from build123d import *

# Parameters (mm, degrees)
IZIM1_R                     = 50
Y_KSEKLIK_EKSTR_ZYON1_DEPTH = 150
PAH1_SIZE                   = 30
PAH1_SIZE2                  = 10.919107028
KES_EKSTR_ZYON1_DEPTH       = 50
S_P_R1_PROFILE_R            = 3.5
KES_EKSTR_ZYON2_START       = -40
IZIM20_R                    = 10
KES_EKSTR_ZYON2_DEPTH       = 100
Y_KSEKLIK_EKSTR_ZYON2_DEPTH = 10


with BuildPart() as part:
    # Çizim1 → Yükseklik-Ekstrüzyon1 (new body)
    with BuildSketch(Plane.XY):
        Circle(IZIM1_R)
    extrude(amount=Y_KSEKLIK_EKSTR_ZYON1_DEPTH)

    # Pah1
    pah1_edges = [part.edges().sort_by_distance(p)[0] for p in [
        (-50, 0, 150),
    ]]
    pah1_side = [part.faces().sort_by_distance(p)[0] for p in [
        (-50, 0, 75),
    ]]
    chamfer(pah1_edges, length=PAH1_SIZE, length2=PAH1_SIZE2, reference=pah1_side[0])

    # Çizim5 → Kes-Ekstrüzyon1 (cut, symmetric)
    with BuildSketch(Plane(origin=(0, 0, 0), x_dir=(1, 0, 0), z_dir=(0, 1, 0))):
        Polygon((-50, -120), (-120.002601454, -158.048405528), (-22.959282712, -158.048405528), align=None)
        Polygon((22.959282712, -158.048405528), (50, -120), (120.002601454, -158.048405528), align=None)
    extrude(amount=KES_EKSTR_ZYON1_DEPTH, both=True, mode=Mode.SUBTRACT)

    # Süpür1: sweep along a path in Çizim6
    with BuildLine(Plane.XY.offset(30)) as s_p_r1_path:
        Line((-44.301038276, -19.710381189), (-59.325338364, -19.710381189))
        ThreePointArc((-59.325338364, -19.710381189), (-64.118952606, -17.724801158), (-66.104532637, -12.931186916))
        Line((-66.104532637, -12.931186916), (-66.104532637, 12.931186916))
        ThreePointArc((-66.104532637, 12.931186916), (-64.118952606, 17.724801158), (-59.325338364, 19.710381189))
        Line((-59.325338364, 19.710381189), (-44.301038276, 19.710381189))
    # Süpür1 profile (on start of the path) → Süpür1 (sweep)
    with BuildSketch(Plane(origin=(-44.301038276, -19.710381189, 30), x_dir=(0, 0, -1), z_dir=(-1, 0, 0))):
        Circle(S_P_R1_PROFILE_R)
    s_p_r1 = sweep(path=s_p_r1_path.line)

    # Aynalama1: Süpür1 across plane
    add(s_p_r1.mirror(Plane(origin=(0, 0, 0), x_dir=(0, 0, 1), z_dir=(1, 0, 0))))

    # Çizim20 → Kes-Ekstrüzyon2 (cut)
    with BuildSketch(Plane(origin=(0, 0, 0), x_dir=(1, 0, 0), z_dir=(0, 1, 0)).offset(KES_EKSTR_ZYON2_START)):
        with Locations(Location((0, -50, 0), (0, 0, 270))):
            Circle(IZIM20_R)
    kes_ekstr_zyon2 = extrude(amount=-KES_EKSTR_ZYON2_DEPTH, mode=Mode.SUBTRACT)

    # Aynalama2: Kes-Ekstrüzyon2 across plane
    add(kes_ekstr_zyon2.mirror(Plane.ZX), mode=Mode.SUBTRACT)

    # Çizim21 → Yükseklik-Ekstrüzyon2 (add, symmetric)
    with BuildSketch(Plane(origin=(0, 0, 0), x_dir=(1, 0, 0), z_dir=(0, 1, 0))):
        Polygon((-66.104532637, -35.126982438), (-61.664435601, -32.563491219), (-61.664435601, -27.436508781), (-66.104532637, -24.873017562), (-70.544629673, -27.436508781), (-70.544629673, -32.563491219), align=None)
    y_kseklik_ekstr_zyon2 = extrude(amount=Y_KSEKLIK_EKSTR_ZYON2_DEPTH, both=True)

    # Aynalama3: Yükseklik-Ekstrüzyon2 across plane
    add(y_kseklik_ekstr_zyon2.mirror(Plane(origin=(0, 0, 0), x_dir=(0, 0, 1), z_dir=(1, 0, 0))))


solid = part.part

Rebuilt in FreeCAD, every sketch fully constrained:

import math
import FreeCAD as App
import Part
import Sketcher
from FreeCAD import Vector
Q = App.Units.Quantity


def edges_at(feature, points):
    """Names of the edges that pass closest to the given points."""
    edges = feature.Shape.Edges
    near = lambda p: min(range(len(edges)), key=lambda i: edges[i].distToShape(Part.Vertex(*p))[0])
    return sorted({f"Edge{near(p) + 1}" for p in points})

doc = App.newDocument("Part")
body = doc.addObject("PartDesign::Body", "Body")

sketch1 = body.newObject("Sketcher::SketchObject", "Sketch")
sketch1.AttachmentSupport = (doc.getObject("XY_Plane"), [""])
sketch1.MapMode = "FlatFace"
sketch1.addGeometry(Part.Circle(Vector(0, 0, 0), Vector(0, 0, 1), 50), False)
sketch1.addConstraint([
    Sketcher.Constraint("Coincident", 0, 3, -1, 1),
    Sketcher.Constraint("Diameter", 0, Q("100 mm")),
])
pad1 = body.newObject("PartDesign::Pad", "Pad")
pad1.Profile = sketch1
pad1.Length = 150
doc.recompute()

chamfer = body.newObject("PartDesign::Chamfer", "Chamfer")
chamfer.Base = (pad1, edges_at(pad1, [(-50, 0, 150)]))
chamfer.ChamferType = "Two distances"
chamfer.Size = 30
chamfer.Size2 = 10.919107

sketch2 = body.newObject("Sketcher::SketchObject", "Sketch001")
sketch2.AttachmentSupport = (doc.getObject("XZ_Plane"), [""])
sketch2.MapMode = "FlatFace"
sketch2.addGeometry([
    Part.LineSegment(Vector(-50, 120, 0), Vector(-120, 158, 0)),
    Part.LineSegment(Vector(-120, 158, 0), Vector(-23, 158, 0)),
    Part.LineSegment(Vector(-23, 158, 0), Vector(-50, 120, 0)),
    Part.LineSegment(Vector(50, 120, 0), Vector(23, 158, 0)),
    Part.LineSegment(Vector(23, 158, 0), Vector(120, 158, 0)),
    Part.LineSegment(Vector(120, 158, 0), Vector(50, 120, 0)),
], False)
sketch2.addConstraint([
    Sketcher.Constraint("Coincident", 0, 2, 1, 1),
    Sketcher.Constraint("Coincident", 1, 2, 2, 1),
    Sketcher.Constraint("Coincident", 2, 2, 0, 1),
    Sketcher.Constraint("Coincident", 3, 2, 4, 1),
    Sketcher.Constraint("Coincident", 4, 2, 5, 1),
    Sketcher.Constraint("Coincident", 5, 2, 3, 1),
    Sketcher.Constraint("Horizontal", 1),
    Sketcher.Constraint("Horizontal", 4),
    Sketcher.Constraint("Symmetric", 1, 2, 3, 2, -2),
    Sketcher.Constraint("Symmetric", 2, 2, 5, 2, -2),
    Sketcher.Constraint("Equal", 1, 4),
    Sketcher.Constraint("DistanceX", 2, 2, -1, 1, Q("50 mm")),
    Sketcher.Constraint("DistanceY", -1, 1, 2, 2, Q("120 mm")),
    Sketcher.Constraint("DistanceX", 1, 1, 1, 2, Q("97.043319 mm")),
    Sketcher.Constraint("DistanceX", 0, 2, -1, 1, Q("120.002601 mm")),
    Sketcher.Constraint("Distance", 0, Q("79.674622 mm")),
])
pocket1 = body.newObject("PartDesign::Pocket", "Pocket")
pocket1.Profile = sketch2
pocket1.Length = 100
pocket1.Midplane = True

sketch3 = body.newObject("Sketcher::SketchObject", "Sketch002")
sketch3.AttachmentSupport = (doc.getObject("YZ_Plane"), [""])
sketch3.MapMode = "FlatFace"
sketch3.AttachmentOffset = App.Placement(Vector(0, 0, -44.301038), App.Rotation())
sketch3.addGeometry(Part.Circle(Vector(-19.7, 30, 0), Vector(0, 0, 1), 3.5), False)
sketch3.addConstraint([
    Sketcher.Constraint("Diameter", 0, Q("7 mm")),
    Sketcher.Constraint("DistanceY", -1, 1, 0, 3, Q("30 mm")),
    Sketcher.Constraint("DistanceX", 0, 3, -1, 1, Q("19.710381 mm")),
])

sketch4 = body.newObject("Sketcher::SketchObject", "Sketch003")
sketch4.AttachmentSupport = (doc.getObject("XY_Plane"), [""])
sketch4.MapMode = "FlatFace"
sketch4.AttachmentOffset = App.Placement(Vector(0, 0, 30), App.Rotation())
sketch4.addGeometry([
    Part.LineSegment(Vector(-44, -20, 0), Vector(-59, -20, 0)),
    Part.ArcOfCircle(Part.Circle(Vector(-59, -13, 0), Vector(0, 0, 1), 7), math.radians(180), math.radians(270)),
    Part.LineSegment(Vector(-66, -13, 0), Vector(-66, 13, 0)),
    Part.ArcOfCircle(Part.Circle(Vector(-59, 13, 0), Vector(0, 0, 1), 7), math.radians(90), math.radians(180)),
    Part.LineSegment(Vector(-59, 20, 0), Vector(-44, 20, 0)),
], False)
sketch4.addConstraint([
    Sketcher.Constraint("Tangent", 0, 2, 1, 2),
    Sketcher.Constraint("Tangent", 1, 1, 2, 1),
    Sketcher.Constraint("Tangent", 2, 2, 3, 2),
    Sketcher.Constraint("Tangent", 3, 1, 4, 1),
    Sketcher.Constraint("Horizontal", 0),
    Sketcher.Constraint("Vertical", 2),
    Sketcher.Constraint("Horizontal", 4),
    Sketcher.Constraint("Equal", 1, 3),
    Sketcher.Constraint("Symmetric", 0, 1, 4, 2, -1),
    Sketcher.Constraint("DistanceX", 0, 2, 0, 1, Q("15.0243 mm")),
    Sketcher.Constraint("Radius", 1, Q("6.779194 mm")),
    Sketcher.Constraint("DistanceY", 2, 1, 2, 2, Q("25.862374 mm")),
    Sketcher.Constraint("DistanceX", 1, 3, -1, 1, Q("59.325338 mm")),
])
doc.recompute()

additivepipe = body.newObject("PartDesign::AdditivePipe", "AdditivePipe")
additivepipe.Profile = sketch3
additivepipe.Spine = (sketch4, ["Edge1", "Edge2", "Edge3", "Edge4", "Edge5"])
doc.recompute()

mirrored = body.newObject("PartDesign::Mirrored", "Mirrored")
mirrored.Originals = [additivepipe]
mirrored.MirrorPlane = (doc.getObject("YZ_Plane"), [""])
body.Tip = mirrored

sketch5 = body.newObject("Sketcher::SketchObject", "Sketch004")
sketch5.AttachmentSupport = (doc.getObject("XZ_Plane"), [""])
sketch5.MapMode = "FlatFace"
sketch5.AttachmentOffset = App.Placement(Vector(0, 0, 40), App.Rotation())
sketch5.addGeometry(Part.Circle(Vector(0, 50, 0), Vector(0, 0, 1), 10), False)
sketch5.addConstraint([
    Sketcher.Constraint("PointOnObject", 0, 3, -2),
    Sketcher.Constraint("Diameter", 0, Q("20 mm")),
    Sketcher.Constraint("DistanceY", -1, 1, 0, 3, Q("50 mm")),
])
pocket2 = body.newObject("PartDesign::Pocket", "Pocket001")
pocket2.Profile = sketch5
pocket2.Length = 100
pocket2.Reversed = True
doc.recompute()

mirrored2 = body.newObject("PartDesign::Mirrored", "Mirrored001")
mirrored2.Originals = [pocket2]
mirrored2.MirrorPlane = (doc.getObject("XZ_Plane"), [""])
body.Tip = mirrored2

sketch6 = body.newObject("Sketcher::SketchObject", "Sketch005")
sketch6.AttachmentSupport = (doc.getObject("XZ_Plane"), [""])
sketch6.MapMode = "FlatFace"
sketch6.addGeometry([
    Part.LineSegment(Vector(-66, 35, 0), Vector(-62, 33, 0)),
    Part.LineSegment(Vector(-62, 33, 0), Vector(-62, 27, 0)),
    Part.LineSegment(Vector(-62, 27, 0), Vector(-66, 25, 0)),
    Part.LineSegment(Vector(-66, 25, 0), Vector(-71, 27, 0)),
    Part.LineSegment(Vector(-71, 27, 0), Vector(-71, 33, 0)),
    Part.LineSegment(Vector(-71, 33, 0), Vector(-66, 35, 0)),
], False)
sketch6.addConstraint([
    Sketcher.Constraint("Coincident", 0, 2, 1, 1),
    Sketcher.Constraint("Coincident", 1, 2, 2, 1),
    Sketcher.Constraint("Coincident", 2, 2, 3, 1),
    Sketcher.Constraint("Coincident", 3, 2, 4, 1),
    Sketcher.Constraint("Coincident", 4, 2, 5, 1),
    Sketcher.Constraint("Coincident", 5, 2, 0, 1),
    Sketcher.Constraint("Vertical", 1),
    Sketcher.Constraint("Vertical", 4),
    Sketcher.Constraint("Parallel", 0, 3),
    Sketcher.Constraint("Parallel", 2, 5),
    Sketcher.Constraint("Horizontal", 1, 2, 3, 2),
    Sketcher.Constraint("Horizontal", 0, 2, 4, 2),
    Sketcher.Constraint("Vertical", 2, 2, 5, 2),
    Sketcher.Constraint("Angle", 0, Q("-30 deg")),
    Sketcher.Constraint("DistanceY", 1, 2, 1, 1, Q("5.126982 mm")),
    Sketcher.Constraint("DistanceY", -1, 1, 0, 2, Q("32.563491 mm")),
    Sketcher.Constraint("DistanceX", 3, 2, -1, 1, Q("70.54463 mm")),
    Sketcher.Constraint("DistanceY", 2, 2, 1, 2, Q("2.563491 mm")),
])
pad2 = body.newObject("PartDesign::Pad", "Pad001")
pad2.Profile = sketch6
pad2.Length = 20
pad2.Midplane = True
doc.recompute()

mirrored3 = body.newObject("PartDesign::Mirrored", "Mirrored002")
mirrored3.Originals = [pad2]
mirrored3.MirrorPlane = (doc.getObject("YZ_Plane"), [""])
body.Tip = mirrored3

doc.recompute()
